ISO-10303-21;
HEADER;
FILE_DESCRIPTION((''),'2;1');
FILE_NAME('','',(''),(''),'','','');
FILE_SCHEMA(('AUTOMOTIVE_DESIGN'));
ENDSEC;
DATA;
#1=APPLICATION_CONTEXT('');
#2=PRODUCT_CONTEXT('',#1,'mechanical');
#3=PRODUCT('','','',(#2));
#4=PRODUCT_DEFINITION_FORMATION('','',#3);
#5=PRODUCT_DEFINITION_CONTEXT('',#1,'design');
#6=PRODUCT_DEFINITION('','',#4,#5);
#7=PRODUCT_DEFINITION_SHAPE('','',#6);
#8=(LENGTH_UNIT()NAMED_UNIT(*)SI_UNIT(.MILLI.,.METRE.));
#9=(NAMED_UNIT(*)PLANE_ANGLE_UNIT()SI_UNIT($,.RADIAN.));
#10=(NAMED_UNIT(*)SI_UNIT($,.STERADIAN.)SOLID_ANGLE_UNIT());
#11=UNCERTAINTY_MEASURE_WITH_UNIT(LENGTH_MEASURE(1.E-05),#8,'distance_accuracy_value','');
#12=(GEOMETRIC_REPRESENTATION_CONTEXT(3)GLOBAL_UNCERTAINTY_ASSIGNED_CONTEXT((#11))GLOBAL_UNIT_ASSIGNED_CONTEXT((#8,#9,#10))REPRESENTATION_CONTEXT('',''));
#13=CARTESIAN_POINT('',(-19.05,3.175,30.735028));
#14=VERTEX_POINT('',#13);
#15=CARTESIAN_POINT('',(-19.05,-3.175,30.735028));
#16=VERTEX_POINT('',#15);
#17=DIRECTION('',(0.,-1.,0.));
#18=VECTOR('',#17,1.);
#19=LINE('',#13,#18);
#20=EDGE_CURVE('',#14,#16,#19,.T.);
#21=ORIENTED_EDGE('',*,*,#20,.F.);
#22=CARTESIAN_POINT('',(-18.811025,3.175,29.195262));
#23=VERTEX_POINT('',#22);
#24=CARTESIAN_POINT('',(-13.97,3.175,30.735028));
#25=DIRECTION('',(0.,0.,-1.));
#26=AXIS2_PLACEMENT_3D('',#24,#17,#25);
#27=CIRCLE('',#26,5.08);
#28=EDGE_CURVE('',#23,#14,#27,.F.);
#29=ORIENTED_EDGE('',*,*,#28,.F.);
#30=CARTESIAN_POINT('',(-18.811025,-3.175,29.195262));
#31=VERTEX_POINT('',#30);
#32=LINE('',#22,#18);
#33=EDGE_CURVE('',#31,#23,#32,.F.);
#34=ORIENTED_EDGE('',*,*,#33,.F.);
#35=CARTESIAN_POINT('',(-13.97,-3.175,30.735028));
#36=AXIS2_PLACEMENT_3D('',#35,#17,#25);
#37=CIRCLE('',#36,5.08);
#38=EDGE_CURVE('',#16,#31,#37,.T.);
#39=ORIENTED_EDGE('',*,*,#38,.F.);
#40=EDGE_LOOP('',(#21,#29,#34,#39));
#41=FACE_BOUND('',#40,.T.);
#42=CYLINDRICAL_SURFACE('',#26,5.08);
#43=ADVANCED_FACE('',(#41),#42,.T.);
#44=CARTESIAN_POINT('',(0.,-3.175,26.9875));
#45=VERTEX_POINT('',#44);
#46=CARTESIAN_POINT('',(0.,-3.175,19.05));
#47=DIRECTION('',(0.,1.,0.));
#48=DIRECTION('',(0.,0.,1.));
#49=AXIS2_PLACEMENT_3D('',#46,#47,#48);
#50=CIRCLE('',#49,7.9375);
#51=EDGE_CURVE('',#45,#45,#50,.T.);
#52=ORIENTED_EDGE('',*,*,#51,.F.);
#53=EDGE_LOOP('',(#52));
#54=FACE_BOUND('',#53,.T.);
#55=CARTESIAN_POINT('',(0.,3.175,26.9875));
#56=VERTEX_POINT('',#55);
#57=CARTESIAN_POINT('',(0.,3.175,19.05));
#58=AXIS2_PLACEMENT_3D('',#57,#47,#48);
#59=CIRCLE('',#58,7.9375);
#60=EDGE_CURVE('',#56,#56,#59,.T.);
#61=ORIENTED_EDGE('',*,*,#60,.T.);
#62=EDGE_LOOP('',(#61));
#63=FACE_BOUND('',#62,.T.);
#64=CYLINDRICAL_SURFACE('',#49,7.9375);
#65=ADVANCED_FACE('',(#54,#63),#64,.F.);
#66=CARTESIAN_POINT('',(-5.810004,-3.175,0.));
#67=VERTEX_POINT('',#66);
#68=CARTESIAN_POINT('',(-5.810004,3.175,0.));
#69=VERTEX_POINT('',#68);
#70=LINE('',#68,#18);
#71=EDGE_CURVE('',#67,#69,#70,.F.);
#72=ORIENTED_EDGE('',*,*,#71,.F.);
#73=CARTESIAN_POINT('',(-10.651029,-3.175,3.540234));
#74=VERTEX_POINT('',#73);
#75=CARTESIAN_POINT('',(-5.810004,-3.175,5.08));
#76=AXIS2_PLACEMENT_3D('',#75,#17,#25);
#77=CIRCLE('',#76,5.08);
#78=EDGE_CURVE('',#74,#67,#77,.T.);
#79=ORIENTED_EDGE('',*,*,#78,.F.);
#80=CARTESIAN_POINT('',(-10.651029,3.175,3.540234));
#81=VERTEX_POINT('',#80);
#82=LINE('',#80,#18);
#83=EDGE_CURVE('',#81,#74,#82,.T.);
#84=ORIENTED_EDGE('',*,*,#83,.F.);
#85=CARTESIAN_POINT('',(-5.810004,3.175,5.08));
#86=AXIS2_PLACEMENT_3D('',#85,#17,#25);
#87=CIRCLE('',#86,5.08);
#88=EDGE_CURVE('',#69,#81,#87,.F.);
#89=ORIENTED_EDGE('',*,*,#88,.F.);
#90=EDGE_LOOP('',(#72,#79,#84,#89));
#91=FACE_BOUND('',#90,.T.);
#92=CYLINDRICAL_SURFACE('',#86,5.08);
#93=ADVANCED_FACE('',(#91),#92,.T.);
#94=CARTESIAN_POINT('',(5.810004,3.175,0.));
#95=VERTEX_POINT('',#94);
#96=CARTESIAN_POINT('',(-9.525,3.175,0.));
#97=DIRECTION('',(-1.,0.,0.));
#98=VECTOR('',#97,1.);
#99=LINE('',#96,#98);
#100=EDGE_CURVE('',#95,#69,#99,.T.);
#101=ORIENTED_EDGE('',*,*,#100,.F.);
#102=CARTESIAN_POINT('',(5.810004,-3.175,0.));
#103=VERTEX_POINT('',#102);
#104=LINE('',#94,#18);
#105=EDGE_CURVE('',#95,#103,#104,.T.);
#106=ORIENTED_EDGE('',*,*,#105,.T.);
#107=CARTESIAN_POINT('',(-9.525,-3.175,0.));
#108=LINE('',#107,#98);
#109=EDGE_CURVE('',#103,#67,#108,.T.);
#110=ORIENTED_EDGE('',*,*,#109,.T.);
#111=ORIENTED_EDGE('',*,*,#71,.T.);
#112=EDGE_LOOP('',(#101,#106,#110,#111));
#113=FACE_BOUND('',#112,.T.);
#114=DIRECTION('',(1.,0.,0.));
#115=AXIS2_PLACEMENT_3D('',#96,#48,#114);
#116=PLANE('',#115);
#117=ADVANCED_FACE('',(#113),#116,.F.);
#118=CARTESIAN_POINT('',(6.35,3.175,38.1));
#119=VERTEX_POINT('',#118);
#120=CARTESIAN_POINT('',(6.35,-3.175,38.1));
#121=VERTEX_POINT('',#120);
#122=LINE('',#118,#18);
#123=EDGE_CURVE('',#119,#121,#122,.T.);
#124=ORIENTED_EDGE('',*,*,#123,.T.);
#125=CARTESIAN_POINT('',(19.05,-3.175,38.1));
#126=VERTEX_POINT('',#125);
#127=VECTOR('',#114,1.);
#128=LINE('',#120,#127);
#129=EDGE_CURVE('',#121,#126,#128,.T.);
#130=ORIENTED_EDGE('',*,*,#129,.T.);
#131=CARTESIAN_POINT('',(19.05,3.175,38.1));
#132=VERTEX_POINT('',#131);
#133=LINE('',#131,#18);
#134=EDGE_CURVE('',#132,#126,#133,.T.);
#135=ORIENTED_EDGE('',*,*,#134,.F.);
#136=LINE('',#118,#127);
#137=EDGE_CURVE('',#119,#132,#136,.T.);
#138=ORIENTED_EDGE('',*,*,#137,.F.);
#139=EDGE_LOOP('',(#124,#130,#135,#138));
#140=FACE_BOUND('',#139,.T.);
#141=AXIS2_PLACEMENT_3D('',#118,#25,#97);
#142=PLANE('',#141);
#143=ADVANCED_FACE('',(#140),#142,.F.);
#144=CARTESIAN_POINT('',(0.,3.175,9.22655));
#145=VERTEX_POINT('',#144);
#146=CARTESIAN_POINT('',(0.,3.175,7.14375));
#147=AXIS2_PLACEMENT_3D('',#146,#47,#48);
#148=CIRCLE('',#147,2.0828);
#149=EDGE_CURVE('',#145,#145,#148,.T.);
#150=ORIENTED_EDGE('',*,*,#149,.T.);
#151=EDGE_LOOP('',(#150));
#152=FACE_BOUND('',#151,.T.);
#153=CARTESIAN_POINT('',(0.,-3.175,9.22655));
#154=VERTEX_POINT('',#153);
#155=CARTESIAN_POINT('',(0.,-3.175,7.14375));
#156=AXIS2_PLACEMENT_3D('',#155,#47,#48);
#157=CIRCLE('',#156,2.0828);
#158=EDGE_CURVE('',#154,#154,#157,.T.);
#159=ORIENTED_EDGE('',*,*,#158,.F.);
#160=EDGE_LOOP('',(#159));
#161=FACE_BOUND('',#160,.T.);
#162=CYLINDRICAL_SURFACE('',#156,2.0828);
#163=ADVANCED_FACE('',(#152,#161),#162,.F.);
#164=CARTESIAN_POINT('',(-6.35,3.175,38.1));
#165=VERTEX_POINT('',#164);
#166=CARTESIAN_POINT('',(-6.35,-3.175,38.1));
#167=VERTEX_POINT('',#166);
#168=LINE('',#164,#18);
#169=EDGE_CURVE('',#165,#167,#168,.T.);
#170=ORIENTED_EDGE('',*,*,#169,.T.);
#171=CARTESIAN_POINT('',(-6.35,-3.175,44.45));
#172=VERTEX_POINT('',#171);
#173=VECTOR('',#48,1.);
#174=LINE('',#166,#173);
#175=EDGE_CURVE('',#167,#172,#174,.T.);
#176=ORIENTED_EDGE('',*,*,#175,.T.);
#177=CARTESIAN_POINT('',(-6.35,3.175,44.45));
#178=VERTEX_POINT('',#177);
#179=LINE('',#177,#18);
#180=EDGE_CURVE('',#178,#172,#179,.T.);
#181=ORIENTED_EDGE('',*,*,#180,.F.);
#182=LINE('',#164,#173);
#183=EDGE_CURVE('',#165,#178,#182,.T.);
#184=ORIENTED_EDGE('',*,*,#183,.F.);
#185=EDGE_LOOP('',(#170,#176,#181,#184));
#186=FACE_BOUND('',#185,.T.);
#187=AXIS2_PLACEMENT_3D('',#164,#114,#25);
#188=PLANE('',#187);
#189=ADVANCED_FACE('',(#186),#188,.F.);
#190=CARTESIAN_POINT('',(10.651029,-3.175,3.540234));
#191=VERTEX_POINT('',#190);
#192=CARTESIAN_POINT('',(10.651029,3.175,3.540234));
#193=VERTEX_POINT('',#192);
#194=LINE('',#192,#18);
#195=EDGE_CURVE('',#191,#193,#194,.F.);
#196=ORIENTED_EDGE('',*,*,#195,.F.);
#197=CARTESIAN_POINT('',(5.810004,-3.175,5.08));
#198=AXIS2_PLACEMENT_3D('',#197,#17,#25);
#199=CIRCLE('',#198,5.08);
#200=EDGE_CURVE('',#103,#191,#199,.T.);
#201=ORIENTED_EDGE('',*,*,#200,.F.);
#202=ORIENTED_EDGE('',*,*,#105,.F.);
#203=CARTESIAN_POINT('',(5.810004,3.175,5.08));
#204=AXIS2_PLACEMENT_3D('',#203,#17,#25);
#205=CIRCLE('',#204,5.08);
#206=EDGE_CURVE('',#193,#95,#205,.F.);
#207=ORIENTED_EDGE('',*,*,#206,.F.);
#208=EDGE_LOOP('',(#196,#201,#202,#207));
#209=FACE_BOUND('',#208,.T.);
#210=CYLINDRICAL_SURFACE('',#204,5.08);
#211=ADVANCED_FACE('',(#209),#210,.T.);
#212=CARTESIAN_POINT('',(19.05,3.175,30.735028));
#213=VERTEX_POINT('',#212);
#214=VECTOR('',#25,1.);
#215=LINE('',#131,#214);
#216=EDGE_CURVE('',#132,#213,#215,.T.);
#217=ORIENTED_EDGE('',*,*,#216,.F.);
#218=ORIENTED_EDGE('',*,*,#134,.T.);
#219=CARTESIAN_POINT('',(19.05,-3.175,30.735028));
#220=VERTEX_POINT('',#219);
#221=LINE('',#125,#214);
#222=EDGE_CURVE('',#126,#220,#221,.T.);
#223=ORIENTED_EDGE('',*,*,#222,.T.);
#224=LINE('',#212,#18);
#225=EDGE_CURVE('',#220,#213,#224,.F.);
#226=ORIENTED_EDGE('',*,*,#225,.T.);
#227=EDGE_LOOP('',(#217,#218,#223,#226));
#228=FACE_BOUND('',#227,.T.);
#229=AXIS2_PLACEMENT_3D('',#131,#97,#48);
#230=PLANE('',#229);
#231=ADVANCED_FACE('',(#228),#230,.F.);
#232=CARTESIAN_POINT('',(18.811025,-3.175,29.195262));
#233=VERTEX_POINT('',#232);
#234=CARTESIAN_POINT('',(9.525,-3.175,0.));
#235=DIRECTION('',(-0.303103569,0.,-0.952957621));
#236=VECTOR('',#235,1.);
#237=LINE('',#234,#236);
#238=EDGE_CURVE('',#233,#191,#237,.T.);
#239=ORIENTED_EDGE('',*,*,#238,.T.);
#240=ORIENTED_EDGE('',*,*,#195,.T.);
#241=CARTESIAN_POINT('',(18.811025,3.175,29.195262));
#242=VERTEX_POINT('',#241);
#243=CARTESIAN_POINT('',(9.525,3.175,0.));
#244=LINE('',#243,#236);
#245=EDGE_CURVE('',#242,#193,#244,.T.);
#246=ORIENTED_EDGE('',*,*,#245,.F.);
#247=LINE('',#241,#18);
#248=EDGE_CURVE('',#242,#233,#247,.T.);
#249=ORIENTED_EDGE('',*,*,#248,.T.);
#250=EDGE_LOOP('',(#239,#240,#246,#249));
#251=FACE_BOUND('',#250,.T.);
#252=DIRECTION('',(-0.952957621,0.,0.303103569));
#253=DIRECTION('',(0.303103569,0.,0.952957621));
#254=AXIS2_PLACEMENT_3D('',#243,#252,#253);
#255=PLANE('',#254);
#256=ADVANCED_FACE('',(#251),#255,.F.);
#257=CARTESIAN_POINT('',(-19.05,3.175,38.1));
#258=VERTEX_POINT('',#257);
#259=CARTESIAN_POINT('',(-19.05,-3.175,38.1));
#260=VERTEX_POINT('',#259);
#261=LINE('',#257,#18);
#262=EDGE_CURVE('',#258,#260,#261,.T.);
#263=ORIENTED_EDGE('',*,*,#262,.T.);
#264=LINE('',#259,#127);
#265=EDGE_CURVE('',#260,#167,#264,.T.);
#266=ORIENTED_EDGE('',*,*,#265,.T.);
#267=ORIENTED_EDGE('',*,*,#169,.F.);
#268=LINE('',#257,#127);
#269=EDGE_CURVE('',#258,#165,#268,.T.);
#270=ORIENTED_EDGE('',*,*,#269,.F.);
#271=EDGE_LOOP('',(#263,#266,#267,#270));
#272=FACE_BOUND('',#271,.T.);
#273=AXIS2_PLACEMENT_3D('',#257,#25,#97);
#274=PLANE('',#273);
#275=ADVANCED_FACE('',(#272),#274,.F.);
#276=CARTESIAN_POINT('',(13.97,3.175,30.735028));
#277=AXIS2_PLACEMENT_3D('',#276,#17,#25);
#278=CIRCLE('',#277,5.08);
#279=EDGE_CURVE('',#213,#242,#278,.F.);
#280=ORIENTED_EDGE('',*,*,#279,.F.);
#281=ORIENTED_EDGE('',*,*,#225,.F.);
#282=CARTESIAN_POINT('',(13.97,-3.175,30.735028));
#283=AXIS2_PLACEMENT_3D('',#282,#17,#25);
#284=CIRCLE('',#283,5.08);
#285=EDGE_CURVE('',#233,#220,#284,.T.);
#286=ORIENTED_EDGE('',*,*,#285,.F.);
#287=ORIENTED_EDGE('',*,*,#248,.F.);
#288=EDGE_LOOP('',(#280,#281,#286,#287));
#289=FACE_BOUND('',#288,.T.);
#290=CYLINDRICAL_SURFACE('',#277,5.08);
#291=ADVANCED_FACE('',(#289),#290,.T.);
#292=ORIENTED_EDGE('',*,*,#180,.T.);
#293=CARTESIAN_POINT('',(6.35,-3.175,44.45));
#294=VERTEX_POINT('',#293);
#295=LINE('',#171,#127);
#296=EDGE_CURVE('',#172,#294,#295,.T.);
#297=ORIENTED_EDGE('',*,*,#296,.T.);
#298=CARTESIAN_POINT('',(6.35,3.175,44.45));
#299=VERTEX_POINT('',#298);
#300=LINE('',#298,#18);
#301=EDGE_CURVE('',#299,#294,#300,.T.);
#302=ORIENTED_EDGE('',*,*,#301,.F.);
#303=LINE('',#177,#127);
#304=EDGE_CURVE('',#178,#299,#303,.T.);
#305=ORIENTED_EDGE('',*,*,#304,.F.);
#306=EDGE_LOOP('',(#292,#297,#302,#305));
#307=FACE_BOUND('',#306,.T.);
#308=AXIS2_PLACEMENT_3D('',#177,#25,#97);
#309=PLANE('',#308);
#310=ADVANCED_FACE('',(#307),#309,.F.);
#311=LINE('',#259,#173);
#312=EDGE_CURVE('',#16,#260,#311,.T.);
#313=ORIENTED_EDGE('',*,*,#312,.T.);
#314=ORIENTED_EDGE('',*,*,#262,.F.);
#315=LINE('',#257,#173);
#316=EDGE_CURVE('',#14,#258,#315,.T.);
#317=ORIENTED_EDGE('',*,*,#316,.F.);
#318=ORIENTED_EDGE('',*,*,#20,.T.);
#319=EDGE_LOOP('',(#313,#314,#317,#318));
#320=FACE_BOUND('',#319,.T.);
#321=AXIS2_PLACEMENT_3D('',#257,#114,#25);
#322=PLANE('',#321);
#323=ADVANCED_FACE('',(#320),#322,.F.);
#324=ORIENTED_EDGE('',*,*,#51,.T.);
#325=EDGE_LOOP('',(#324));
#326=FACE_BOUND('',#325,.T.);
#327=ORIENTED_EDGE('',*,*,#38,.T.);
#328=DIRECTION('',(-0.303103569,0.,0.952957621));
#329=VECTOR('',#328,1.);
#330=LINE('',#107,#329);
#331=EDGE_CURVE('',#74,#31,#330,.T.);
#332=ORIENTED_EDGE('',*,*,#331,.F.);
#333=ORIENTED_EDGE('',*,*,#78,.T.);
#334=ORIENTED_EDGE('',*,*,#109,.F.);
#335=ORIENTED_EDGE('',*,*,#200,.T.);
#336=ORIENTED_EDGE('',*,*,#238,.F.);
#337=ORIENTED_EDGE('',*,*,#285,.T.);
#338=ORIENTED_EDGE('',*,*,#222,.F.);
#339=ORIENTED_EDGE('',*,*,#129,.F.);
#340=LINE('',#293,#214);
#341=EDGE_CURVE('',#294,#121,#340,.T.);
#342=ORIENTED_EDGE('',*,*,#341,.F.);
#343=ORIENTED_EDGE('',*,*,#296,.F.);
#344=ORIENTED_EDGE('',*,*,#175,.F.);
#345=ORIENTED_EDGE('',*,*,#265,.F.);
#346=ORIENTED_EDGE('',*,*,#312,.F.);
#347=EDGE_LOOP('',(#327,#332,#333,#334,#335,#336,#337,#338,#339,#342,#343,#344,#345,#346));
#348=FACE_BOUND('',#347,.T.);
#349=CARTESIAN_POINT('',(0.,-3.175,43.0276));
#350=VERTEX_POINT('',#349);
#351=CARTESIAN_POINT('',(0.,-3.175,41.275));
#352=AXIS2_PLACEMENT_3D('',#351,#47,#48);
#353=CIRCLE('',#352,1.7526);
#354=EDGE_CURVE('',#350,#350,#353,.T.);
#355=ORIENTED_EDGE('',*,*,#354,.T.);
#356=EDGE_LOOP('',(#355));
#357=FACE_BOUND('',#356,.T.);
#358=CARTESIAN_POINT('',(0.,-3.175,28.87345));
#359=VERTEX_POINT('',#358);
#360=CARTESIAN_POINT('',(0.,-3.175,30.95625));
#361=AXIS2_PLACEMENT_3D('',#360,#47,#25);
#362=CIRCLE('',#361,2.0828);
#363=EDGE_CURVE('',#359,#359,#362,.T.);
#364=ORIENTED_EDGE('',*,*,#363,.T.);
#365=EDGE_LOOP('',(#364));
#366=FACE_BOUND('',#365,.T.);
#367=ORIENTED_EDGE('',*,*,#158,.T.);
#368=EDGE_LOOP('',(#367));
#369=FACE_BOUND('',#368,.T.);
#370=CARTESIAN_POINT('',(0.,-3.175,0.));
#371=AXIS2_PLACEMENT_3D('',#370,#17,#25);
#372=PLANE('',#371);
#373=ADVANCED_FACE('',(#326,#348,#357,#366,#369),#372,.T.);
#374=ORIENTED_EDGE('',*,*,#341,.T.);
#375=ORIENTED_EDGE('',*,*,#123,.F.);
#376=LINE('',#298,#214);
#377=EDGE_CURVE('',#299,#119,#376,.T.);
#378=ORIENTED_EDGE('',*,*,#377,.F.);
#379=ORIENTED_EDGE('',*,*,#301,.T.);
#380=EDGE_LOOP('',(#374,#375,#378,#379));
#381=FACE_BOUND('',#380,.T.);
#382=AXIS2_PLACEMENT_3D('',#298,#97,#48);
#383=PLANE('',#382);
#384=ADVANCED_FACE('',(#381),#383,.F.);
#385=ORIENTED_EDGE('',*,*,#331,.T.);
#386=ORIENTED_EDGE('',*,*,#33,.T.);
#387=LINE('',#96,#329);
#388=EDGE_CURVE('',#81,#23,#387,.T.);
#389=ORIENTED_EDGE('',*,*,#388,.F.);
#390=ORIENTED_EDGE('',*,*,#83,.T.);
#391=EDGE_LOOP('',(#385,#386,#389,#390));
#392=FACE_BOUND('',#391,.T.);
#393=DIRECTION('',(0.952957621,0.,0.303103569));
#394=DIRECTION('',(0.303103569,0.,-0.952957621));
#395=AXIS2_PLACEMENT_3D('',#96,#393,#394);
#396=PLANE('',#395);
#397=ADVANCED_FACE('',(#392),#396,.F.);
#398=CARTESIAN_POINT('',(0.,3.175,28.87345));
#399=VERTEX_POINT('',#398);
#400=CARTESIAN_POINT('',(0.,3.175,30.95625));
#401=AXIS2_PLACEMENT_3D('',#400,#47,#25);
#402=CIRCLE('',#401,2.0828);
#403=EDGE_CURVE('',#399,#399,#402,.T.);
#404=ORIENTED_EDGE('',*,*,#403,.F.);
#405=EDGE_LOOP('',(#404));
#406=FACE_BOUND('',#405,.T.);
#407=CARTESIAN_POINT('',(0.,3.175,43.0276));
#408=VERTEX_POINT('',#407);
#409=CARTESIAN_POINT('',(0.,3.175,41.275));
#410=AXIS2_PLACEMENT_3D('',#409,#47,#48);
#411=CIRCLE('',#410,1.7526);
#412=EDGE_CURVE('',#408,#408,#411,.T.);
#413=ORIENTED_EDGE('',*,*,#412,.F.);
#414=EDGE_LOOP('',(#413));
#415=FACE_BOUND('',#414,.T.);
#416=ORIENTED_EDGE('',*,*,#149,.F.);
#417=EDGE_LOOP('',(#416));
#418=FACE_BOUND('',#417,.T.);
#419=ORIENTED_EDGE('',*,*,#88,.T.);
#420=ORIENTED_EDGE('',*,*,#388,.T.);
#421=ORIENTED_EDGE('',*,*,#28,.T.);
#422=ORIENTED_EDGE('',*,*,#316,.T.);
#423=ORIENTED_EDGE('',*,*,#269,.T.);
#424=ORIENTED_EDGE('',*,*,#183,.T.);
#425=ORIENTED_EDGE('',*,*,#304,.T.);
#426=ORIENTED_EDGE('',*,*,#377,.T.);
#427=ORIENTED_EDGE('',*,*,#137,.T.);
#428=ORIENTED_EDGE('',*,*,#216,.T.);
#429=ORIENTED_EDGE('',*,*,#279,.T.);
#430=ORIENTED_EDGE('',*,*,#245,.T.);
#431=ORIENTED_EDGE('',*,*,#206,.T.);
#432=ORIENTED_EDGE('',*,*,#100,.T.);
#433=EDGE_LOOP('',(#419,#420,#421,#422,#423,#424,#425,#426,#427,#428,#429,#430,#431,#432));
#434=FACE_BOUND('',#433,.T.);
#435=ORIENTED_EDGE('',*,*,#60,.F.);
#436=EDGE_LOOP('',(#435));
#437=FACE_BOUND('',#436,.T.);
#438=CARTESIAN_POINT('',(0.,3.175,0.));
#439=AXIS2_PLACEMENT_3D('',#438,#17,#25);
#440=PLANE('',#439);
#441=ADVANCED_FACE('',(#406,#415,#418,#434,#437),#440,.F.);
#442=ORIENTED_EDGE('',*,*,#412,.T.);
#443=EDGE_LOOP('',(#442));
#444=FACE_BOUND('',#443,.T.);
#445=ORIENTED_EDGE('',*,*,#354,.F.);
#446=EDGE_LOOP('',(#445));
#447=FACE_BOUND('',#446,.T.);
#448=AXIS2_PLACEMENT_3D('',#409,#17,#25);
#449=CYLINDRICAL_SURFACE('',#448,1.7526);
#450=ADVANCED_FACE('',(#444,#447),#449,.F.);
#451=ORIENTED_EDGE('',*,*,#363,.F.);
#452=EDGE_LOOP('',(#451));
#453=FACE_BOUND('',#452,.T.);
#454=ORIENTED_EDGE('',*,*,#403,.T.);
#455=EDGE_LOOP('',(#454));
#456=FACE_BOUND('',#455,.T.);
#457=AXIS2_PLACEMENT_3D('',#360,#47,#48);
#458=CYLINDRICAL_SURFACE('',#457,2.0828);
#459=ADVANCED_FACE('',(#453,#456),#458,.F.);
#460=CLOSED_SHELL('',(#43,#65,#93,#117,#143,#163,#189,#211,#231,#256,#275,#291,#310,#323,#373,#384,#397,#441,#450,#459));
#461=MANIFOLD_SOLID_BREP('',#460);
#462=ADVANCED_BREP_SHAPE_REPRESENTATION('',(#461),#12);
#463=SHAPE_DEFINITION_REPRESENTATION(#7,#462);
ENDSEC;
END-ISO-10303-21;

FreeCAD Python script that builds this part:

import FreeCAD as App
import Part
import Sketcher
Q = App.Units.Quantity


def edges_at(feature, points):
    """Names of the edges that pass closest to the given points."""
    edges = feature.Shape.Edges
    near = lambda p: min(range(len(edges)), key=lambda i: edges[i].distToShape(Part.Vertex(*p))[0])
    return sorted({f"Edge{near(p) + 1}" for p in points})


def add_polygon(sketch, points):
    """Adds a closed chain of lines whose ends are joined by coincident constraints."""
    first, n = sketch.GeometryCount, len(points)
    for a, b in zip(points, points[1:] + points[:1]):
        sketch.addGeometry(Part.LineSegment(App.Vector(*a, 0), App.Vector(*b, 0)), False)
    for i in range(n):
        sketch.addConstraint(Sketcher.Constraint("Coincident", first + i, 2, first + (i + 1) % n, 1))

doc = App.newDocument("Part")
body = doc.addObject("PartDesign::Body", "Body")

# Sketch on XZ plane
sketch1 = body.newObject("Sketcher::SketchObject", "Sketch")
sketch1.AttachmentSupport = (doc.getObject("XZ_Plane"), [""])
sketch1.MapMode = "FlatFace"
add_polygon(sketch1, [(-19.1, 38.1), (-6.3, 38.1), (-6.3, 44.5), (6.3, 44.5), (6.3, 38.1), (19.1, 38.1), (19.1, 29.9), (9.5, 0), (-9.5, 0), (-19.1, 29.9)])  # lines 0-9
sketch1.addGeometry(Part.Circle(App.Vector(0, 41.3, 0), App.Vector(0, 0, 1), 1.8), False)  # 10
sketch1.addConstraint([
    Sketcher.Constraint("Horizontal", 0),
    Sketcher.Constraint("Vertical", 1),
    Sketcher.Constraint("Horizontal", 2),
    Sketcher.Constraint("Vertical", 3),
    Sketcher.Constraint("Horizontal", 4),
    Sketcher.Constraint("Vertical", 5),
    Sketcher.Constraint("Horizontal", 7),
    Sketcher.Constraint("Vertical", 9),
    Sketcher.Constraint("Symmetric", 6, 2, 7, 2, -1, 1),
    Sketcher.Constraint("Symmetric", 0, 2, 3, 2, -2),
    Sketcher.Constraint("Symmetric", 5, 2, 8, 2, -2),
    Sketcher.Constraint("PointOnObject", 10, 3, -2),
    Sketcher.Constraint("Equal", 0, 2),
    Sketcher.Constraint("Diameter", 10, Q("0.138 in")),
    Sketcher.Constraint("DistanceX", 0, 1, 0, 2, Q("0.5 in")),
    Sketcher.Constraint("DistanceX", 7, 2, 7, 1, Q("0.75 in")),
    Sketcher.Constraint("DistanceY", 1, 1, 1, 2, Q("0.25 in")),
    Sketcher.Constraint("DistanceY", -1, 1, 0, 2, Q("1.5 in")),
    Sketcher.Constraint("DistanceY", 5, 2, 5, 1, Q("0.321 in")),
    Sketcher.Constraint("DistanceY", -1, 1, 10, 3, Q("1.625 in")),
])
pad1 = body.newObject("PartDesign::Pad", "Pad")
pad1.Profile = sketch1
pad1.Length = Q("0.25 in")
pad1.Midplane = True
doc.recompute()

fillet = body.newObject("PartDesign::Fillet", "Fillet")
fillet.Base = (pad1, edges_at(pad1, [(-9.525, 0, 0), (9.525, 0, 0)]))
fillet.Radius = Q("0.2 in")
doc.recompute()

fillet2 = body.newObject("PartDesign::Fillet", "Fillet001")
fillet2.Base = (fillet, edges_at(fillet, [(-19.05, 0, 29.947), (19.05, 0, 29.947)]))
fillet2.Radius = Q("0.2 in")

# Sketch on XZ plane
sketch2 = body.newObject("Sketcher::SketchObject", "Sketch001")
sketch2.AttachmentSupport = (doc.getObject("XZ_Plane"), [""])
sketch2.MapMode = "FlatFace"
sketch2.AttachmentOffset = App.Placement(App.Vector(0, 0, -0.125 * 25.4), App.Rotation())
sketch2.addGeometry([
    Part.Circle(App.Vector(0, 7.1, 0), App.Vector(0, 0, 1), 2.1),
    Part.Circle(App.Vector(0, 19.1, 0), App.Vector(0, 0, 1), 7.9),
    Part.Circle(App.Vector(0, 31, 0), App.Vector(0, 0, 1), 2.1),
], False)
sketch2.addConstraint([
    Sketcher.Constraint("Equal", 0, 2),
    Sketcher.Constraint("PointOnObject", 0, 3, -2),
    Sketcher.Constraint("PointOnObject", 1, 3, -2),
    Sketcher.Constraint("PointOnObject", 2, 3, -2),
    Sketcher.Constraint("Diameter", 0, Q("0.164 in")),
    Sketcher.Constraint("Diameter", 1, Q("0.625 in")),
    Sketcher.Constraint("DistanceY", -1, 1, 1, 3, Q("0.75 in")),
    Sketcher.Constraint("DistanceY", -1, 1, 0, 3, Q("0.28125 in")),
    Sketcher.Constraint("DistanceY", -1, 1, 2, 3, Q("1.21875 in")),
])
pocket1 = body.newObject("PartDesign::Pocket", "Pocket")
pocket1.Profile = sketch2
pocket1.Type = "ThroughAll"
pocket1.Reversed = True

doc.recompute()
